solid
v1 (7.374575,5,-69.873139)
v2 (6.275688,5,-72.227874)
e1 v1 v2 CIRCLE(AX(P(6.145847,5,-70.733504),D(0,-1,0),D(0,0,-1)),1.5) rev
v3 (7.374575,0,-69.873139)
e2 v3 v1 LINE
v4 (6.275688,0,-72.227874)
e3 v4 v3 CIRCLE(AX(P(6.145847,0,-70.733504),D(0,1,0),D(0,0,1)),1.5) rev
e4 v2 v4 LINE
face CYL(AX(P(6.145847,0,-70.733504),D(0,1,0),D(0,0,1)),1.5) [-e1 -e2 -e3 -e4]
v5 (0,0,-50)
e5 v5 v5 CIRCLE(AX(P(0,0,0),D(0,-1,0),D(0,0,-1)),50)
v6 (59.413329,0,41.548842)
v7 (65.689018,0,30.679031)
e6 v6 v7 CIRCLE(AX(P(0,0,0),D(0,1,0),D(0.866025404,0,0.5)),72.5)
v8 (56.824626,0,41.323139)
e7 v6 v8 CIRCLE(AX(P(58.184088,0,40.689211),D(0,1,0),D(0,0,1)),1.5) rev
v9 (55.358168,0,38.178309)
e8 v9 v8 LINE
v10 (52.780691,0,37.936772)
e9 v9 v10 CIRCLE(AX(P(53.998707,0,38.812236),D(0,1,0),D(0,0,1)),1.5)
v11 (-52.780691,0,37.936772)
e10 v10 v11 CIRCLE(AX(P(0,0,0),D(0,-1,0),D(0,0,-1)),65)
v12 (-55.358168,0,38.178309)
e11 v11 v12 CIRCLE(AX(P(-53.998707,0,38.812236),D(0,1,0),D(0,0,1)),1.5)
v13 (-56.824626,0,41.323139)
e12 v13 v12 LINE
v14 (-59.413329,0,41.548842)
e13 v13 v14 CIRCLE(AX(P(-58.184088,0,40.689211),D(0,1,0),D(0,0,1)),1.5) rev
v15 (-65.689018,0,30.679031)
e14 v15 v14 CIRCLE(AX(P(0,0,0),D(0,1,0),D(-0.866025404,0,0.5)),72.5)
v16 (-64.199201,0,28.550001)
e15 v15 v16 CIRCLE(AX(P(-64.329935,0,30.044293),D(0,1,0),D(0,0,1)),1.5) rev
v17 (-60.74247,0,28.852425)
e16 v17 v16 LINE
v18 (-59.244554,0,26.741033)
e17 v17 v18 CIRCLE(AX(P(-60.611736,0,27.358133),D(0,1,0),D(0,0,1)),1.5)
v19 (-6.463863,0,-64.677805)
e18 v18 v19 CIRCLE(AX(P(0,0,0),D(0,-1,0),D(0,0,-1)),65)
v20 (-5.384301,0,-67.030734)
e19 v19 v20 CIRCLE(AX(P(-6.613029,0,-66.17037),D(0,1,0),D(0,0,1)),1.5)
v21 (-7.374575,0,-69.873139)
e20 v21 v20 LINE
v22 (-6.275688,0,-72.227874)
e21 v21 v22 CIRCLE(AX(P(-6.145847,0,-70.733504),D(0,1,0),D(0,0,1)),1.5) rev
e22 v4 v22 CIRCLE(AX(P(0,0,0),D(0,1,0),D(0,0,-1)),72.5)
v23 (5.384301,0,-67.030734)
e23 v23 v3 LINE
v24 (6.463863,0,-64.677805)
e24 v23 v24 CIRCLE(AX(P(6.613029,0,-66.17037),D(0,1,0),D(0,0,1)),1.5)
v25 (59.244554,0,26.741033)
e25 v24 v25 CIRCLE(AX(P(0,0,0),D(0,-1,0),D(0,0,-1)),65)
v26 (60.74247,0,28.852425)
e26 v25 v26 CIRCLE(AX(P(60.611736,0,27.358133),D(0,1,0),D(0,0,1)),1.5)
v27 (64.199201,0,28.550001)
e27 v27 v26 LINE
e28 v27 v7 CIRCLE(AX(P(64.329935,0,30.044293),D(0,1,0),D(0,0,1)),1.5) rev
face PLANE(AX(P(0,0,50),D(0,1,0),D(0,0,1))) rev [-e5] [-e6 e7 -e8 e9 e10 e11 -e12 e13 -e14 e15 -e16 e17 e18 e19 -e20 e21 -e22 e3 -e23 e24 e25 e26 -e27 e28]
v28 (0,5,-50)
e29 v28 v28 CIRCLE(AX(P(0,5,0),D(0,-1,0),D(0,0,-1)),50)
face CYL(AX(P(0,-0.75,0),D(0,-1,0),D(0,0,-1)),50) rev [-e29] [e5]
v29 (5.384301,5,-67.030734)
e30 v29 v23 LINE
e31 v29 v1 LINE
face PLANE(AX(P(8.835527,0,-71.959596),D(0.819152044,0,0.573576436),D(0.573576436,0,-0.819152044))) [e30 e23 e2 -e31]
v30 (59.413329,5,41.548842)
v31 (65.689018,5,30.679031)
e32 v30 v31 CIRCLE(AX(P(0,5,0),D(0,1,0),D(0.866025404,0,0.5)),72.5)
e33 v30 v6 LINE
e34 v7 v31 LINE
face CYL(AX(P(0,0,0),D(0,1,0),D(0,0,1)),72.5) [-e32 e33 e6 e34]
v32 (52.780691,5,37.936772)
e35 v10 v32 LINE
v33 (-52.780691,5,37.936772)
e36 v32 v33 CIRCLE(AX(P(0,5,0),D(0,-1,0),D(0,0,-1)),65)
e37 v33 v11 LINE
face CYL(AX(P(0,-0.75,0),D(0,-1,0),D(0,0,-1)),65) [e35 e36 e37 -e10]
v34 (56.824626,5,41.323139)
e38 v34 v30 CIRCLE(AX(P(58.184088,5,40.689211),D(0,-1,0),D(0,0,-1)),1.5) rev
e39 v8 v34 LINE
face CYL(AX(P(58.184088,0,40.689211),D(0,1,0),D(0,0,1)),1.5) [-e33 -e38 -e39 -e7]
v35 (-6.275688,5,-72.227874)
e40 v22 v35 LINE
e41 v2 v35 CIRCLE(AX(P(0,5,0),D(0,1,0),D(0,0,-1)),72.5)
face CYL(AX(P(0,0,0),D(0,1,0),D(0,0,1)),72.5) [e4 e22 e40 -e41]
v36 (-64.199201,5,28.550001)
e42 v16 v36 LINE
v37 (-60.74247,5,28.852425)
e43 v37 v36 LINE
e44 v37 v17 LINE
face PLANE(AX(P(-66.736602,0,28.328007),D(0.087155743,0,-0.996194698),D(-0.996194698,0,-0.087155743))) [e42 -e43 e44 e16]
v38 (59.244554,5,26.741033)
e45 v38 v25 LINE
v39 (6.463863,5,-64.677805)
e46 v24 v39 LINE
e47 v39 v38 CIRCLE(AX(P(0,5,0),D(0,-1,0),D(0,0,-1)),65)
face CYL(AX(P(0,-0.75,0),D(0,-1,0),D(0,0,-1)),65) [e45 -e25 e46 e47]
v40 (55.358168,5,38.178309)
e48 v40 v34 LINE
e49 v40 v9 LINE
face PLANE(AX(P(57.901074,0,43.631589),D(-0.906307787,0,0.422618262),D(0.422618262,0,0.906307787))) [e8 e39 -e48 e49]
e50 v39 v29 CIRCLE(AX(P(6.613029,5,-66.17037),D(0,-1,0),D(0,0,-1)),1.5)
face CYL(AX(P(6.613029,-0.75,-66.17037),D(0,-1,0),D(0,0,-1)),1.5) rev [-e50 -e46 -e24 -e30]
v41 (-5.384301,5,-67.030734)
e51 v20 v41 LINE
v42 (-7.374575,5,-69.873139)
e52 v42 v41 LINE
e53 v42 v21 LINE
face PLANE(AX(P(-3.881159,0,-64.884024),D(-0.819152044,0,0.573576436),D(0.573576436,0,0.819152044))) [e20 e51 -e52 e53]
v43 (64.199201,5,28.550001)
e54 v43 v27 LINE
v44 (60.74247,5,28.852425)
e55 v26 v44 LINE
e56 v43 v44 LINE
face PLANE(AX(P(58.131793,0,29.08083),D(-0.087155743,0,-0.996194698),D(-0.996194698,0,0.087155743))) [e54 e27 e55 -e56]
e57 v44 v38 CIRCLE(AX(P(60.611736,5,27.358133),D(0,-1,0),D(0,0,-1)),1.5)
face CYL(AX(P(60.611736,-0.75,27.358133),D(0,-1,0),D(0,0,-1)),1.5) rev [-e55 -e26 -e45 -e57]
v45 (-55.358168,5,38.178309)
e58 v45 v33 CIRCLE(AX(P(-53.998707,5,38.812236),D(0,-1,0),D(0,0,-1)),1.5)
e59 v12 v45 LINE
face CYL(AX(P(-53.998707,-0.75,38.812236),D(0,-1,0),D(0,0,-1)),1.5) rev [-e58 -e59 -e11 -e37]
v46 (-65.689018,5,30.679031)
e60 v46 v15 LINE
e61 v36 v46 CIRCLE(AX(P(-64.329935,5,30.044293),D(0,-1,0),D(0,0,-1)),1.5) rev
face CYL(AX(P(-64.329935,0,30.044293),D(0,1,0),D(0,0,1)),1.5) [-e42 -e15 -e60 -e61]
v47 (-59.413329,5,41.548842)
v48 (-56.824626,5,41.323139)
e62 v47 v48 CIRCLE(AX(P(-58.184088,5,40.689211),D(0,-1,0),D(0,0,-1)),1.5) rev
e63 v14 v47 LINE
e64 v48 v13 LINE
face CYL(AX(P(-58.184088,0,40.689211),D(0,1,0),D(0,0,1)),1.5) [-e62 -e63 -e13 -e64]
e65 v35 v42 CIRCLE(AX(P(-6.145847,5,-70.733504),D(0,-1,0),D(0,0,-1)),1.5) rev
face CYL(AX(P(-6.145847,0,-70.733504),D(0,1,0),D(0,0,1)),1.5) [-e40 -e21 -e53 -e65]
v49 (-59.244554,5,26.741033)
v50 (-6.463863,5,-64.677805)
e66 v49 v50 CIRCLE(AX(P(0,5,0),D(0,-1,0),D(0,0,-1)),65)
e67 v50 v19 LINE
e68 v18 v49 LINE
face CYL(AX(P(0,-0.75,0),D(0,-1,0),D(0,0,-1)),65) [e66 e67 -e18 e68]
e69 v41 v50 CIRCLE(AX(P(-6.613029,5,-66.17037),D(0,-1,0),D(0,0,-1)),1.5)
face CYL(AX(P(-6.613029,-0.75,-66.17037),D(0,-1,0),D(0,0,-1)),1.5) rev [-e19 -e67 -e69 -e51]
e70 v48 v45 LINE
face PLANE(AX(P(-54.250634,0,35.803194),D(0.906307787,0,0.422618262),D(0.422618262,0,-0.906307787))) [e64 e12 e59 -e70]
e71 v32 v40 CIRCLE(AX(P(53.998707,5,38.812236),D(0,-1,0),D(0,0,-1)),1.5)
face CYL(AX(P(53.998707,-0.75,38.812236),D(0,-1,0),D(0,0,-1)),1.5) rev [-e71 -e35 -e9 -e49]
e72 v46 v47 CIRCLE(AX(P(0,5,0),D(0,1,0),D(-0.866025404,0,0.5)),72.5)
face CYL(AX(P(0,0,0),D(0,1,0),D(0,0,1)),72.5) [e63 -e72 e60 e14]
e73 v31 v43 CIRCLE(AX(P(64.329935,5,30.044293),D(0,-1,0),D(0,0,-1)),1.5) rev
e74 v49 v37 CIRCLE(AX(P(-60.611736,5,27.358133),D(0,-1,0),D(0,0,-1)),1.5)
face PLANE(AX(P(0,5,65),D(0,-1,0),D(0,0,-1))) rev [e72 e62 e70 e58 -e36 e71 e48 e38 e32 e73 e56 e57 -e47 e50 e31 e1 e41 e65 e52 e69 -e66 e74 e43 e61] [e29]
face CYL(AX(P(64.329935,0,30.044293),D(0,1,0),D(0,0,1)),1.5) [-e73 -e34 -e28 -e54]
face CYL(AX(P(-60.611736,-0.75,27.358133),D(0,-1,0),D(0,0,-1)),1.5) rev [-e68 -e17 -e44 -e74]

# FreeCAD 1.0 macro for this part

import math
import FreeCAD as App
import Part
import Sketcher

V = App.Vector
Q = App.Units.Quantity


def edges_at(feature, points):
    """Names of the edges that pass closest to the given points."""
    edges = feature.Shape.Edges
    near = lambda p: min(range(len(edges)), key=lambda i: edges[i].distToShape(Part.Vertex(*p))[0])
    return sorted({f"Edge{near(p) + 1}" for p in points})


def add_polygon(sketch, points):
    """Adds a closed chain of lines whose ends are joined by coincident constraints."""
    first, n = sketch.GeometryCount, len(points)
    for a, b in zip(points, points[1:] + points[:1]):
        sketch.addGeometry(Part.LineSegment(App.Vector(*a, 0), App.Vector(*b, 0)), False)
    for i in range(n):
        sketch.addConstraint(Sketcher.Constraint("Coincident", first + i, 2, first + (i + 1) % n, 1))

doc = App.newDocument("Part")
body = doc.addObject("PartDesign::Body", "Body")

sketch1 = body.newObject("Sketcher::SketchObject", "Sketch")
sketch1.AttachmentSupport = (doc.getObject("YZ_Plane"), [""])
sketch1.MapMode = "FlatFace"
add_polygon(sketch1, [(5, 65), (0, 65), (0, 50), (5, 50)])
sketch1.addConstraint([
    Sketcher.Constraint("Horizontal", 0),
    Sketcher.Constraint("Vertical", 1),
    Sketcher.Constraint("Horizontal", 2),
    Sketcher.Constraint("Vertical", 3),
    Sketcher.Constraint("PointOnObject", 0, 2, -2),
    Sketcher.Constraint("DistanceX", 0, 2, 0, 1, Q("5 mm")),
    Sketcher.Constraint("DistanceY", 1, 2, 1, 1, Q("15 mm")),
    Sketcher.Constraint("DistanceY", -1, 1, 0, 2, Q("65 mm")),
])
revolution = body.newObject("PartDesign::Revolution", "Revolution")
revolution.Profile = sketch1
revolution.ReferenceAxis = (sketch1, ["H_Axis"])
revolution.Angle = 360

sketch2 = body.newObject("Sketcher::SketchObject", "Sketch001")
sketch2.AttachmentSupport = (doc.getObject("XZ_Plane"), [""])
sketch2.MapMode = "FlatFace"
sketch2.AttachmentOffset = App.Placement(V(0, 0, -5), App.Rotation())
sketch2.addGeometry([
    Part.LineSegment(V(-8.835527, -71.959596, 0), V(-3.881159, -64.884024, 0)),
    Part.ArcOfCircle(Part.Circle(V(0, 0, 0), V(0, 0, 1), 65), math.radians(-93.423175), math.radians(-86.576825)),
    Part.LineSegment(V(3.881159, -64.884024, 0), V(8.835527, -71.959596, 0)),
    Part.ArcOfCircle(Part.Circle(V(0, 0, 0), V(0, 0, 1), 72.5), math.radians(-97), math.radians(-83)),
], False)
sketch2.addConstraint([
    Sketcher.Constraint("Coincident", 0, 2, 1, 1),
    Sketcher.Constraint("Coincident", 1, 2, 2, 1),
    Sketcher.Constraint("Coincident", 2, 2, 3, 2),
    Sketcher.Constraint("Coincident", 3, 1, 0, 1),
    Sketcher.Constraint("Coincident", 1, 3, -1, 1),
    Sketcher.Constraint("Coincident", 3, 3, -1, 1),
    Sketcher.Constraint("Horizontal", 0, 2, 1, 2),
    Sketcher.Constraint("Horizontal", 2, 2, 3, 1),
    Sketcher.Constraint("Radius", 1, Q("65 mm")),
    Sketcher.Constraint("Radius", 3, Q("72.5 mm")),
    Sketcher.Constraint("Angle", 0, Q("55 deg")),
    Sketcher.Constraint("Distance", 0, Q("8.637678 mm")),
])
pad1 = body.newObject("PartDesign::Pad", "Pad")
pad1.Profile = sketch2
pad1.Length = 5
doc.recompute()

fillet = body.newObject("PartDesign::Fillet", "Fillet")
fillet.Base = (pad1, edges_at(pad1, [
    (3.881, 2.5, -64.884),
    (-3.881, 2.5, -64.884),
    (-8.836, 2.5, -71.96),
    (8.836, 2.5, -71.96),
]))
fillet.Radius = 1.5
doc.recompute()

polarpattern = body.newObject("PartDesign::PolarPattern", "PolarPattern")
polarpattern.Originals = [pad1]
polarpattern.Axis = (doc.getObject("Y_Axis"), [""])
polarpattern.Angle = 360
polarpattern.Occurrences = 3
body.Tip = polarpattern
doc.recompute()

fillet2 = body.newObject("PartDesign::Fillet", "Fillet001")
fillet2.Base = (polarpattern, edges_at(polarpattern, [
    (-58.132, 2.5, 29.081),
    (-54.251, 2.5, 35.803),
    (-57.901, 2.5, 43.632),
    (-66.737, 2.5, 28.328),
    (54.251, 2.5, 35.803),
    (58.132, 2.5, 29.081),
    (66.737, 2.5, 28.328),
    (57.901, 2.5, 43.632),
]))
fillet2.Radius = 1.5

doc.recompute()
